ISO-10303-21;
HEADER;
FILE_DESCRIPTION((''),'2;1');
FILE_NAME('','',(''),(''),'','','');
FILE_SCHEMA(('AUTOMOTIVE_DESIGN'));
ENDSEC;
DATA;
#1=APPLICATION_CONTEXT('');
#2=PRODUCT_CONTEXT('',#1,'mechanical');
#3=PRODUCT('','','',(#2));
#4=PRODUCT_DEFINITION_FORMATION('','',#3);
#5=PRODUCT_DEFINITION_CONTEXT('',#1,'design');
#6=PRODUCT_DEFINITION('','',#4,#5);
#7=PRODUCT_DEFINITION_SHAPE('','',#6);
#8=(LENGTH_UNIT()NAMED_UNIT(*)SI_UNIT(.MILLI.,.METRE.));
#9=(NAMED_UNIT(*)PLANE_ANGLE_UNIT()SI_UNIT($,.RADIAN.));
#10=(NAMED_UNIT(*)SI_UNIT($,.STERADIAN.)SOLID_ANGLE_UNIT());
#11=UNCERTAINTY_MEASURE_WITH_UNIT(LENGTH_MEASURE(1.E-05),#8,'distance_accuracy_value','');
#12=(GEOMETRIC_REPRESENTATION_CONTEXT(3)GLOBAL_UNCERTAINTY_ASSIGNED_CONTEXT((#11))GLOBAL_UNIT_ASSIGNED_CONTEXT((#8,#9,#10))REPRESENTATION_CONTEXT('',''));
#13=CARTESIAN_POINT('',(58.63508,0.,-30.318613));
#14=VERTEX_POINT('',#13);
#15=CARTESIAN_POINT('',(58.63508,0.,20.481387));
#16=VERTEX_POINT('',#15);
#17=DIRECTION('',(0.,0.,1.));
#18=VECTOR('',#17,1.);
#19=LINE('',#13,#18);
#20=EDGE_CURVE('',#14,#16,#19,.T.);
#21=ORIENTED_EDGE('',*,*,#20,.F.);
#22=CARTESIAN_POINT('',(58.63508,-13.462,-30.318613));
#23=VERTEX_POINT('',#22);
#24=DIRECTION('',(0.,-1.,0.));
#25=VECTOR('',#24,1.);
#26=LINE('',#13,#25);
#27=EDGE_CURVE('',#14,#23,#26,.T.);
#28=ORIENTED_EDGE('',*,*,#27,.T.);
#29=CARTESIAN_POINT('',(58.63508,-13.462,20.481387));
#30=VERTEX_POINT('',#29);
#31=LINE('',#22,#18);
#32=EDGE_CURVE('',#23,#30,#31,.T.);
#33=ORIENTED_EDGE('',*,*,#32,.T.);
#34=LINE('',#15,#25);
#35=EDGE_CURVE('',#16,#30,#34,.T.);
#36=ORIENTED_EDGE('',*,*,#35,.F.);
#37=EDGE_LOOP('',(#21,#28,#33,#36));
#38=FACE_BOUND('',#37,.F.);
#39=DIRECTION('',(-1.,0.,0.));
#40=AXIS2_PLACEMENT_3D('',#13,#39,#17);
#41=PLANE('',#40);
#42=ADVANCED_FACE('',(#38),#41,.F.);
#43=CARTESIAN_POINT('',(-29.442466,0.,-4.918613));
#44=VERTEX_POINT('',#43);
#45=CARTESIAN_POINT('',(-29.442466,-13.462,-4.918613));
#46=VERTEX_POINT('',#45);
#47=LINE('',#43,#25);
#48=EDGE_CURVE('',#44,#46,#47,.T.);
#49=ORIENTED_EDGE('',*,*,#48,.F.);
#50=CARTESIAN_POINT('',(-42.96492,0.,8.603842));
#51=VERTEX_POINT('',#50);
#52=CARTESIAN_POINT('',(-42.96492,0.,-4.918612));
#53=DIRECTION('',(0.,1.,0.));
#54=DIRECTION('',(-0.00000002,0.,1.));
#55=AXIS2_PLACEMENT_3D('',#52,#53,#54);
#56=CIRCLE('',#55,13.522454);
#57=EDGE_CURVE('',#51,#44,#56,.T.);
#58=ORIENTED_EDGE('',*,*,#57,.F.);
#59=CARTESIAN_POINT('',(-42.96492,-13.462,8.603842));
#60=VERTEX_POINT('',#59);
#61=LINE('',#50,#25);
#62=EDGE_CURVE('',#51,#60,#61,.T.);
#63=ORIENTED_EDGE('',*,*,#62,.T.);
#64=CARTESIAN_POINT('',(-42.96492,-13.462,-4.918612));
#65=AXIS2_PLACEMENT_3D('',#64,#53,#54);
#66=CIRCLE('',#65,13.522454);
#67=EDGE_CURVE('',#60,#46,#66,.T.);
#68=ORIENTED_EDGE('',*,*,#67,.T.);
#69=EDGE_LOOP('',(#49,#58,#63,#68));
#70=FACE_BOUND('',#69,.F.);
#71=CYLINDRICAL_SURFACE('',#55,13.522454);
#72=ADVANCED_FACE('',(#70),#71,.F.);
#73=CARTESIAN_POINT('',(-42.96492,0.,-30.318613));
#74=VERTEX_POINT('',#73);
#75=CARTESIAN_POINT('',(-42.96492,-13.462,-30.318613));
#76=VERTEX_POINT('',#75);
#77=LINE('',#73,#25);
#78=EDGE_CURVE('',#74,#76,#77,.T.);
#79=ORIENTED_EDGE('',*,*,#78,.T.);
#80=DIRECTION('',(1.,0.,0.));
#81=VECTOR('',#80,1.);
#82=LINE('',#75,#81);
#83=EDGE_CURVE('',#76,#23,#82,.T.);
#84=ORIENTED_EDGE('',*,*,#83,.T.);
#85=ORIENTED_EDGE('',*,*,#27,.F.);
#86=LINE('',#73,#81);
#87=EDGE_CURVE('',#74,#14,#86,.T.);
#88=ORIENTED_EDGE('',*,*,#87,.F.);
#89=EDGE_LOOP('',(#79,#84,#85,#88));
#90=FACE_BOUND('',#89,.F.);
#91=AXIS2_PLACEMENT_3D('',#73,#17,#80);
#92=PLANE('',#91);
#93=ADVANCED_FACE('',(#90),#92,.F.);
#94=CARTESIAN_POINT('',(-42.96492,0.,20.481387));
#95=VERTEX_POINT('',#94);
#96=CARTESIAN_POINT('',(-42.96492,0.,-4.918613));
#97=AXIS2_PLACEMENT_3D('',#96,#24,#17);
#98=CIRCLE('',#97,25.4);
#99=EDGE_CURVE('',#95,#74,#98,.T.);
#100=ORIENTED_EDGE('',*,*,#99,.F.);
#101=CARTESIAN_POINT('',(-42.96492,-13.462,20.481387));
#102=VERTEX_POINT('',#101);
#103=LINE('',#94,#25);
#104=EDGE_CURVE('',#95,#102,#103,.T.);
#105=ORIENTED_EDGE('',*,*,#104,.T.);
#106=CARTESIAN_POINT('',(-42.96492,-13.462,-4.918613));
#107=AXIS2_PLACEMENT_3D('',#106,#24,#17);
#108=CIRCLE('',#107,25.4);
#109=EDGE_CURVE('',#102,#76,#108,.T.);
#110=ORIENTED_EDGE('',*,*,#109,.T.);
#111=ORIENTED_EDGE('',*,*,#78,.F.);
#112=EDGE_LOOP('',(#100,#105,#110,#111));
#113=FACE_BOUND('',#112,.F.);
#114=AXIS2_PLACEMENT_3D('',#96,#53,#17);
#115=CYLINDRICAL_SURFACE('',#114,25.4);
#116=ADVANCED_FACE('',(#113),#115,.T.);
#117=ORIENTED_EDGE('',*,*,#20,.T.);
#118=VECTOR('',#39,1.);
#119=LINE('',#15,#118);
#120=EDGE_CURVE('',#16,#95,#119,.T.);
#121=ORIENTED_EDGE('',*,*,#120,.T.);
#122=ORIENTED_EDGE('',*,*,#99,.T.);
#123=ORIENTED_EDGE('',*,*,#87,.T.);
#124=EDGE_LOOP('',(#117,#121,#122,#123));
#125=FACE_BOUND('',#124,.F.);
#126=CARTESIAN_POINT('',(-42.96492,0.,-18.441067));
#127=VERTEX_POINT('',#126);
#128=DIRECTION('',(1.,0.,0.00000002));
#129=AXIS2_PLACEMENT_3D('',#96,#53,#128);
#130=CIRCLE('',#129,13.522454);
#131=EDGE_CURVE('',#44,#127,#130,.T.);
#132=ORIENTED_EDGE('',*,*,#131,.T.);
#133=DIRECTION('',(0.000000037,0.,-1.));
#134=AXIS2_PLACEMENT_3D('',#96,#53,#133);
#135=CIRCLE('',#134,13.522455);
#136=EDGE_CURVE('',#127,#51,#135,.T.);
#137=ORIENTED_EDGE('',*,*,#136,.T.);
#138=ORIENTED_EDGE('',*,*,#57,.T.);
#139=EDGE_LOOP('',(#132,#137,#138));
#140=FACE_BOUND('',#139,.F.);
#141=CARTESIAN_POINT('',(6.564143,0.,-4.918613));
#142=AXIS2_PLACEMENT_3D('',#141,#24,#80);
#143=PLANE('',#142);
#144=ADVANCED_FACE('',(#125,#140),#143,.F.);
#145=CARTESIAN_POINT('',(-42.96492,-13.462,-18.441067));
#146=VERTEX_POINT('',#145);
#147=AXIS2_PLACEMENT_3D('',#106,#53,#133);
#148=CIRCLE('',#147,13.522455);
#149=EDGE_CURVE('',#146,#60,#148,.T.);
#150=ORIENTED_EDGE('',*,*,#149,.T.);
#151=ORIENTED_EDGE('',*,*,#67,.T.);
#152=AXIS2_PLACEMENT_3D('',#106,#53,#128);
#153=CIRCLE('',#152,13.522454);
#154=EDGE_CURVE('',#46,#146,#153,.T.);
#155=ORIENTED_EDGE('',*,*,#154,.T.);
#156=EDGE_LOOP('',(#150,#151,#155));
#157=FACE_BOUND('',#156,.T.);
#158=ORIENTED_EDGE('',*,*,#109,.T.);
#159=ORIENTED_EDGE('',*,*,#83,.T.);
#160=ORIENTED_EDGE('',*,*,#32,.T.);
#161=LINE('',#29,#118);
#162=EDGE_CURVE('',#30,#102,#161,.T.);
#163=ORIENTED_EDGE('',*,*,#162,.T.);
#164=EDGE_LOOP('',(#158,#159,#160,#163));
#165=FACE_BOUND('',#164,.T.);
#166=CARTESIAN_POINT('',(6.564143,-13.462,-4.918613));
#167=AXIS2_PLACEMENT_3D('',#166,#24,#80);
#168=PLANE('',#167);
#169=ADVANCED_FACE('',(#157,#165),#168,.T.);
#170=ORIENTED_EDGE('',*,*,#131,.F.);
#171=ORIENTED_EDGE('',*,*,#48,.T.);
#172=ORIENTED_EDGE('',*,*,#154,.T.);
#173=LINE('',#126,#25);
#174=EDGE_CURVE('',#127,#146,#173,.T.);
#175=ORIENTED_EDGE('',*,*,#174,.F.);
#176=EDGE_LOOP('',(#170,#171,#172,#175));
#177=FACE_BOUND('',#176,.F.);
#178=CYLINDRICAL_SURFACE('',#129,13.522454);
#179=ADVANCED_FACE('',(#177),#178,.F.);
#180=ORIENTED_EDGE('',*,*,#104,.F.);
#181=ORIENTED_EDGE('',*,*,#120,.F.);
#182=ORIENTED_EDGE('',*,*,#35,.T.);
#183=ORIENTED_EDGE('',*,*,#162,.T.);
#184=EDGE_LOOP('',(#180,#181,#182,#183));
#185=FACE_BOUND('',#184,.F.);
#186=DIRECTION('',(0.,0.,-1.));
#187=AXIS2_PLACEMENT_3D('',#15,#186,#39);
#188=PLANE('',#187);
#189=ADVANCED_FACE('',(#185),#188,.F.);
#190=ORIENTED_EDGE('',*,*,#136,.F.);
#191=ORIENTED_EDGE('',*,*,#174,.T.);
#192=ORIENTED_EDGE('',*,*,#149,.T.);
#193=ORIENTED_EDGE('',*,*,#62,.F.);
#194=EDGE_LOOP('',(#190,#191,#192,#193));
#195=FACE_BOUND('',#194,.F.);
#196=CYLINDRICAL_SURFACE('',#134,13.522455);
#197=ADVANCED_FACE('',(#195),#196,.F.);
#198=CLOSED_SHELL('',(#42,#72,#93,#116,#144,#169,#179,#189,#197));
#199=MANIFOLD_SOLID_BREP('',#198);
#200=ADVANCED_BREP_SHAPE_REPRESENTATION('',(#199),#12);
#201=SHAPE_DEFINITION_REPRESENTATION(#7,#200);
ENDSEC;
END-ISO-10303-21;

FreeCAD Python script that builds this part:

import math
import FreeCAD as App
import Part
import Sketcher
from FreeCAD import Vector
Q = App.Units.Quantity

doc = App.newDocument("Part")
body = doc.addObject("PartDesign::Body", "Body")

sketch1 = body.newObject("Sketcher::SketchObject", "Sketch")
sketch1.AttachmentSupport = (doc.getObject("XZ_Plane"), [""])
sketch1.MapMode = "FlatFace"
sketch1.addGeometry([
    Part.LineSegment(Vector(-43, -30, 0), Vector(59, -30, 0)),
    Part.LineSegment(Vector(59, -30, 0), Vector(59, 20, 0)),
    Part.LineSegment(Vector(59, 20, 0), Vector(-43, 20, 0)),
    Part.ArcOfCircle(Part.Circle(Vector(-43, -5, 0), Vector(0, 0, 1), 25), math.radians(90), math.radians(270)),
    Part.ArcOfCircle(Part.Circle(Vector(-43, -5, 0), Vector(0, 0, 1), 14), math.radians(0), math.radians(90)),
    Part.ArcOfCircle(Part.Circle(Vector(-43, -5, 0), Vector(0, 0, 1), 14), math.radians(-90), math.radians(0)),
    Part.ArcOfCircle(Part.Circle(Vector(-43, -5, 0), Vector(0, 0, 1), 14), math.radians(90), math.radians(270)),
], False)
sketch1.addConstraint([
    Sketcher.Constraint("Coincident", 0, 2, 1, 1),
    Sketcher.Constraint("Coincident", 1, 2, 2, 1),
    Sketcher.Constraint("Tangent", 2, 2, 3, 1),
    Sketcher.Constraint("Tangent", 3, 2, 0, 1),
    Sketcher.Constraint("Tangent", 4, 1, 5, 2),
    Sketcher.Constraint("Tangent", 5, 1, 6, 2),
    Sketcher.Constraint("Tangent", 6, 1, 4, 2),
    Sketcher.Constraint("Horizontal", 0),
    Sketcher.Constraint("Vertical", 1),
    Sketcher.Constraint("Horizontal", 2),
    Sketcher.Constraint("Coincident", 4, 3, 3, 3),
    Sketcher.Constraint("Horizontal", 6, 3, 4, 1),
    Sketcher.Constraint("Vertical", 3, 2, 5, 1),
    Sketcher.Constraint("Vertical", 5, 1, 6, 1),
    Sketcher.Constraint("Radius", 3, Q("1 in")),
    Sketcher.Constraint("DistanceX", 0, 1, 0, 2, Q("4 in")),
    Sketcher.Constraint("Radius", 4, Q("13.522454 mm")),
    Sketcher.Constraint("DistanceX", 3, 3, -1, 1, Q("42.96492 mm")),
    Sketcher.Constraint("DistanceY", 4, 3, -1, 1, Q("4.918612 mm")),
])
pad1 = body.newObject("PartDesign::Pad", "Pad")
pad1.Profile = sketch1
pad1.Length = Q("0.53 in")

doc.recompute()
